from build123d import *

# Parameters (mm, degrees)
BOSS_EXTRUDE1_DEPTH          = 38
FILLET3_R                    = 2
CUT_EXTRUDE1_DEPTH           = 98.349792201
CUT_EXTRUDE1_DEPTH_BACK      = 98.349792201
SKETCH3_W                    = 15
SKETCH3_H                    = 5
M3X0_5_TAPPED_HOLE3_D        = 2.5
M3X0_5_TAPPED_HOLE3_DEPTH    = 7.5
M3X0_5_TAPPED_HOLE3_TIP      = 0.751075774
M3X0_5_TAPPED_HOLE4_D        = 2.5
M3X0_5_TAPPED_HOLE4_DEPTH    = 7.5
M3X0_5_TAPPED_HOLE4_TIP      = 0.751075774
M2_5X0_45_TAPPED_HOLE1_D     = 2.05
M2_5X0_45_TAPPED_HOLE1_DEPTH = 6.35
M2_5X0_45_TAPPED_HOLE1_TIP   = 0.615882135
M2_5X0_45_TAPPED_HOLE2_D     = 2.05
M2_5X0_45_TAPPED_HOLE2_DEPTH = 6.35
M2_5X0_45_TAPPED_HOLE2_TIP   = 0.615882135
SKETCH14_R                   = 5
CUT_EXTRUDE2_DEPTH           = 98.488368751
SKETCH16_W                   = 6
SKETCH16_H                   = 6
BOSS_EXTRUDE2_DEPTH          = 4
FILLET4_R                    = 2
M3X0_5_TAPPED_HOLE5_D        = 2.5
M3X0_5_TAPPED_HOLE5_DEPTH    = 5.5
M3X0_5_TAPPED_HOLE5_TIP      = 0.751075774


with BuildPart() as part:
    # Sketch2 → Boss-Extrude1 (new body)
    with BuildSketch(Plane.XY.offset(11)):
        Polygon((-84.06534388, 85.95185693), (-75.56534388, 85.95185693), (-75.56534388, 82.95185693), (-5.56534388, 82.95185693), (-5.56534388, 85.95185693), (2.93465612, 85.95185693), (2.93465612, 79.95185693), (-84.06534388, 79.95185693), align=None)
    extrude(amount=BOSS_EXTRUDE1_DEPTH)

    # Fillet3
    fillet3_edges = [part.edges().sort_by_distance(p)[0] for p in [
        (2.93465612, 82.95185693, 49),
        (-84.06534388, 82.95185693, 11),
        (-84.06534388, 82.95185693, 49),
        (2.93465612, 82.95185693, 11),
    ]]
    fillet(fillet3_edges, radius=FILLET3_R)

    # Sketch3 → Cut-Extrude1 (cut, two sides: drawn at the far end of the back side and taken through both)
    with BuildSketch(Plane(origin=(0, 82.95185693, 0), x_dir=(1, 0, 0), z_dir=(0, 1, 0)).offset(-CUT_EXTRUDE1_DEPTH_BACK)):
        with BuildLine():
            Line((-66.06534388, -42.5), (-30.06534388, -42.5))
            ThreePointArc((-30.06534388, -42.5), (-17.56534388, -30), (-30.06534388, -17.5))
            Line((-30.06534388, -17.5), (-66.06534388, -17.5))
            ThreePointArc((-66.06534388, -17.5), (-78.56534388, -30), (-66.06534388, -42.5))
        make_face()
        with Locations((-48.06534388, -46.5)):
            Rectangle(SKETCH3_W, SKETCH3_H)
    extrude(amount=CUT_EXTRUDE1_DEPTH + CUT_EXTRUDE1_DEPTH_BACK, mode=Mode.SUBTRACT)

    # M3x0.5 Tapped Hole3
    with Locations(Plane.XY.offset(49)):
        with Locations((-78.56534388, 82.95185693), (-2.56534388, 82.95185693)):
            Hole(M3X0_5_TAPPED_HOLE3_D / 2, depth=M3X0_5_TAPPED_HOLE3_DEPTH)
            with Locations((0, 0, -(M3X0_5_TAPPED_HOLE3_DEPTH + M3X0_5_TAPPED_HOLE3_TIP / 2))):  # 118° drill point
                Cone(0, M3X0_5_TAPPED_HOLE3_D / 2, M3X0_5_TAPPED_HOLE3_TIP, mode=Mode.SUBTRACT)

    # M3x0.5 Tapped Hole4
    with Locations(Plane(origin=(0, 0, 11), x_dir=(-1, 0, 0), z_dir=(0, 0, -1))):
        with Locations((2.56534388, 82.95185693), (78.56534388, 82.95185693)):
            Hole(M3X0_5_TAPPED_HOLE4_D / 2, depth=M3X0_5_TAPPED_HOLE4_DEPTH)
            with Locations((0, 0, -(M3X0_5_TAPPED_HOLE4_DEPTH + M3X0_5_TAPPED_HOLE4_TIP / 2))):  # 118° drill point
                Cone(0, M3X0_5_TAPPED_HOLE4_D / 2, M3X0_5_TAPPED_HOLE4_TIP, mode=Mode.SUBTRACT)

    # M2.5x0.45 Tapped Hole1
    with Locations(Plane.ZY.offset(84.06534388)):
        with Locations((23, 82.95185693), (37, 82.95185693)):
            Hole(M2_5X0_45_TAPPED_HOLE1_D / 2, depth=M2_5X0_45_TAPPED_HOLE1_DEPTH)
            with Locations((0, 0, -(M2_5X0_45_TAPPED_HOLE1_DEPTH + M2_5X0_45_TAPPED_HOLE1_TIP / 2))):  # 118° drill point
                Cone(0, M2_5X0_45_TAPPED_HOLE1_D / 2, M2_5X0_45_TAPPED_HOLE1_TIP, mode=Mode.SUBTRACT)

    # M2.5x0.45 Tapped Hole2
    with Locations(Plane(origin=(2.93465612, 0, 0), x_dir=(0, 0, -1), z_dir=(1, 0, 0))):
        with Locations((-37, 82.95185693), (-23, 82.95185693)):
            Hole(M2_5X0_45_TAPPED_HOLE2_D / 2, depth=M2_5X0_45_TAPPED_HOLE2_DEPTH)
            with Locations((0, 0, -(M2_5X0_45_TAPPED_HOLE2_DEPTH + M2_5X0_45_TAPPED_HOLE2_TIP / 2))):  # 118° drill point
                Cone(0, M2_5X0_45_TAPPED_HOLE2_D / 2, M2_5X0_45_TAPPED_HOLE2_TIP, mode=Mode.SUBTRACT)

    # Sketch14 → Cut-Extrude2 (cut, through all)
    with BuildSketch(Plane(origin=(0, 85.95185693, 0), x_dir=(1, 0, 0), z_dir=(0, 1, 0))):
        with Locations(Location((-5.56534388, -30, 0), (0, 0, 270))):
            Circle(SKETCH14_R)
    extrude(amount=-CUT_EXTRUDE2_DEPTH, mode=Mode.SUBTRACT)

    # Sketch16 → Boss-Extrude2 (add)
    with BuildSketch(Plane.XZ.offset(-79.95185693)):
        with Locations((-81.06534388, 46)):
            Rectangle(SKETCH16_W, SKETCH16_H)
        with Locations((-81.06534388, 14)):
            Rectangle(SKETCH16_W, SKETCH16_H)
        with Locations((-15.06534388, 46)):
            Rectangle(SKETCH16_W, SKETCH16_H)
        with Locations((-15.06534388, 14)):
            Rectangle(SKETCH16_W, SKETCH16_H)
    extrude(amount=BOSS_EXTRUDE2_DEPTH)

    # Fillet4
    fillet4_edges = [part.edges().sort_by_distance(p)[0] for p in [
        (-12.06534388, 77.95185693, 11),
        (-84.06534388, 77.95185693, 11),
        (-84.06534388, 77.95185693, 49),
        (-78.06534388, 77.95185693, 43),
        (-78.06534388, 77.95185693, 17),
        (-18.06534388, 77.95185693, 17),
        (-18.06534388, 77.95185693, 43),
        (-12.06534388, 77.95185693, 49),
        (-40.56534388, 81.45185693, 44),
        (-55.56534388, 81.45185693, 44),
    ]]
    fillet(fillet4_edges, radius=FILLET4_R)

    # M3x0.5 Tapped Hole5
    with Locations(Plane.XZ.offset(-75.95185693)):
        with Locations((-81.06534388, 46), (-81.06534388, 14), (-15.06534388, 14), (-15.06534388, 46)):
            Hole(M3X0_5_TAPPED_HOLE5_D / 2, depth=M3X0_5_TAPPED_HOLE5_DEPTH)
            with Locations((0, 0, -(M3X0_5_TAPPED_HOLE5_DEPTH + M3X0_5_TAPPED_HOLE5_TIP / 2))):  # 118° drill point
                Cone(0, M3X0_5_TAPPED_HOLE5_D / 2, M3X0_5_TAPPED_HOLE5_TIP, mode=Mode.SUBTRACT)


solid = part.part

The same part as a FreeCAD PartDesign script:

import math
import FreeCAD as App
import Part
import Sketcher

V = App.Vector
Q = App.Units.Quantity


def edges_at(feature, points):
    """Names of the edges that pass closest to the given points."""
    edges = feature.Shape.Edges
    near = lambda p: min(range(len(edges)), key=lambda i: edges[i].distToShape(Part.Vertex(*p))[0])
    return sorted({f"Edge{near(p) + 1}" for p in points})

doc = App.newDocument("Part")
body = doc.addObject("PartDesign::Body", "Body")

sketch1 = body.newObject("Sketcher::SketchObject", "Sketch")
sketch1.AttachmentSupport = (doc.getObject("XY_Plane"), [""])
sketch1.MapMode = "FlatFace"
sketch1.AttachmentOffset = App.Placement(V(0, 0, 11), App.Rotation())
sketch1.addGeometry(Part.LineSegment(V(-75.6, 86, 0), V(-84.1, 86, 0)), False)
sketch1.addGeometry(Part.LineSegment(V(-84.1, 86, 0), V(-84.1, 80, 0)), False)
sketch1.addGeometry(Part.LineSegment(V(-84.1, 80, 0), V(2.9, 80, 0)), False)
sketch1.addGeometry(Part.LineSegment(V(2.9, 80, 0), V(2.9, 86, 0)), False)
sketch1.addGeometry(Part.LineSegment(V(2.9, 86, 0), V(-5.6, 86, 0)), False)
sketch1.addGeometry(Part.LineSegment(V(-5.6, 86, 0), V(-5.6, 83, 0)), False)
sketch1.addGeometry(Part.LineSegment(V(-5.6, 83, 0), V(-75.6, 83, 0)), False)
sketch1.addGeometry(Part.LineSegment(V(-75.6, 83, 0), V(-75.6, 86, 0)), False)
sketch1.addConstraint(Sketcher.Constraint("Coincident", 0, 2, 1, 1))
sketch1.addConstraint(Sketcher.Constraint("Coincident", 1, 2, 2, 1))
sketch1.addConstraint(Sketcher.Constraint("Coincident", 2, 2, 3, 1))
sketch1.addConstraint(Sketcher.Constraint("Coincident", 3, 2, 4, 1))
sketch1.addConstraint(Sketcher.Constraint("Coincident", 4, 2, 5, 1))
sketch1.addConstraint(Sketcher.Constraint("Coincident", 5, 2, 6, 1))
sketch1.addConstraint(Sketcher.Constraint("Coincident", 6, 2, 7, 1))
sketch1.addConstraint(Sketcher.Constraint("Coincident", 7, 2, 0, 1))
sketch1.addConstraint(Sketcher.Constraint("Horizontal", 0))
sketch1.addConstraint(Sketcher.Constraint("Vertical", 1))
sketch1.addConstraint(Sketcher.Constraint("Horizontal", 2))
sketch1.addConstraint(Sketcher.Constraint("Vertical", 3))
sketch1.addConstraint(Sketcher.Constraint("Horizontal", 4))
sketch1.addConstraint(Sketcher.Constraint("Vertical", 5))
sketch1.addConstraint(Sketcher.Constraint("Horizontal", 6))
sketch1.addConstraint(Sketcher.Constraint("Vertical", 7))
sketch1.addConstraint(Sketcher.Constraint("Horizontal", 0, 2, 3, 2))
sketch1.addConstraint(Sketcher.Constraint("Equal", 0, 4))
sketch1.addConstraint(Sketcher.Constraint("DistanceX", 2, 1, 2, 2, Q("87 mm")))
sketch1.addConstraint(Sketcher.Constraint("DistanceX", 6, 2, 6, 1, Q("70 mm")))
sketch1.addConstraint(Sketcher.Constraint("DistanceY", 1, 2, 1, 1, Q("6 mm")))
sketch1.addConstraint(Sketcher.Constraint("DistanceY", 5, 2, 5, 1, Q("3 mm")))
sketch1.addConstraint(Sketcher.Constraint("DistanceX", 0, 2, -1, 1, Q("84.065344 mm")))
sketch1.addConstraint(Sketcher.Constraint("DistanceY", -1, 1, 0, 2, Q("85.951857 mm")))
pad1 = body.newObject("PartDesign::Pad", "Pad")
pad1.Profile = sketch1
pad1.Length = 38
doc.recompute()

fillet = body.newObject("PartDesign::Fillet", "Fillet")
fillet.Base = (pad1, edges_at(pad1, [
    (2.935, 82.952, 49),
    (-84.065, 82.952, 11),
    (-84.065, 82.952, 49),
    (2.935, 82.952, 11),
]))
fillet.Radius = 2

sketch2 = body.newObject("Sketcher::SketchObject", "Sketch001")
sketch2.AttachmentSupport = (doc.getObject("XZ_Plane"), [""])
sketch2.MapMode = "FlatFace"
sketch2.AttachmentOffset = App.Placement(V(0, 0, -82.951857), App.Rotation())
sketch2.addGeometry(Part.LineSegment(V(-66, 42, 0), V(-30, 42, 0)), False)
sketch2.addGeometry(Part.ArcOfCircle(Part.Circle(V(-30, 30, 0), V(0, 0, 1), 12), math.radians(-90), math.radians(90)), False)
sketch2.addGeometry(Part.LineSegment(V(-30, 18, 0), V(-66, 18, 0)), False)
sketch2.addGeometry(Part.ArcOfCircle(Part.Circle(V(-66, 30, 0), V(0, 0, 1), 12), math.radians(90), math.radians(270)), False)
sketch2.addGeometry(Part.LineSegment(V(-56, 44, 0), V(-56, 49, 0)), False)
sketch2.addGeometry(Part.LineSegment(V(-56, 49, 0), V(-41, 49, 0)), False)
sketch2.addGeometry(Part.LineSegment(V(-41, 49, 0), V(-41, 44, 0)), False)
sketch2.addGeometry(Part.LineSegment(V(-41, 44, 0), V(-56, 44, 0)), False)
sketch2.addConstraint(Sketcher.Constraint("Tangent", 0, 2, 1, 2))
sketch2.addConstraint(Sketcher.Constraint("Tangent", 1, 1, 2, 1))
sketch2.addConstraint(Sketcher.Constraint("Tangent", 2, 2, 3, 2))
sketch2.addConstraint(Sketcher.Constraint("Tangent", 3, 1, 0, 1))
sketch2.addConstraint(Sketcher.Constraint("Coincident", 4, 2, 5, 1))
sketch2.addConstraint(Sketcher.Constraint("Coincident", 5, 2, 6, 1))
sketch2.addConstraint(Sketcher.Constraint("Coincident", 6, 2, 7, 1))
sketch2.addConstraint(Sketcher.Constraint("Coincident", 7, 2, 4, 1))
sketch2.addConstraint(Sketcher.Constraint("Horizontal", 0))
sketch2.addConstraint(Sketcher.Constraint("Horizontal", 2))
sketch2.addConstraint(Sketcher.Constraint("Vertical", 4))
sketch2.addConstraint(Sketcher.Constraint("Horizontal", 5))
sketch2.addConstraint(Sketcher.Constraint("Vertical", 6))
sketch2.addConstraint(Sketcher.Constraint("Horizontal", 7))
sketch2.addConstraint(Sketcher.Constraint("Radius", 1, Q("12.5 mm")))
sketch2.addConstraint(Sketcher.Constraint("DistanceX", 0, 1, 0, 2, Q("36 mm")))
sketch2.addConstraint(Sketcher.Constraint("DistanceX", 5, 1, 5, 2, Q("15 mm")))
sketch2.addConstraint(Sketcher.Constraint("DistanceY", 4, 1, 4, 2, Q("5 mm")))
sketch2.addConstraint(Sketcher.Constraint("DistanceY", -1, 1, 1, 3, Q("30 mm")))
sketch2.addConstraint(Sketcher.Constraint("DistanceY", -1, 1, 4, 2, Q("49 mm")))
sketch2.addConstraint(Sketcher.Constraint("DistanceX", 3, 1, 4, 2, Q("10.5 mm")))
sketch2.addConstraint(Sketcher.Constraint("DistanceX", 1, 3, -1, 1, Q("30.065344 mm")))
pocket1 = body.newObject("PartDesign::Pocket", "Pocket")
pocket1.Profile = sketch2
pocket1.Type = "ThroughAll"
pocket1.Midplane = True

sketch3 = body.newObject("Sketcher::SketchObject", "Sketch002")
sketch3.AttachmentSupport = (doc.getObject("XY_Plane"), [""])
sketch3.MapMode = "FlatFace"
sketch3.AttachmentOffset = App.Placement(V(0, 0, 49), App.Rotation())
sketch3.addGeometry(Part.Circle(V(-78.6, 83, 0), V(0, 0, 1), 1.2), False)
sketch3.addGeometry(Part.Circle(V(-2.6, 83, 0), V(0, 0, 1), 1.2), False)
sketch3.addConstraint(Sketcher.Constraint("Equal", 0, 1))
sketch3.addConstraint(Sketcher.Constraint("Horizontal", 0, 3, 1, 3))
sketch3.addConstraint(Sketcher.Constraint("Diameter", 0, Q("2.5 mm")))
sketch3.addConstraint(Sketcher.Constraint("DistanceX", 0, 3, 1, 3, Q("76 mm")))
sketch3.addConstraint(Sketcher.Constraint("DistanceX", 0, 3, -1, 1, Q("78.565344 mm")))
sketch3.addConstraint(Sketcher.Constraint("DistanceY", -1, 1, 0, 3, Q("82.951857 mm")))
doc.recompute()
hole = body.newObject("PartDesign::Hole", "Hole")
hole.Profile = sketch3
hole.ThreadType = "None"
hole.Diameter = 2.5
hole.DepthType = "Dimension"
hole.Depth = 7.5
hole.DrillPoint = "Angled"
hole.DrillPointAngle = 118

sketch4 = body.newObject("Sketcher::SketchObject", "Sketch003")
sketch4.AttachmentSupport = (doc.getObject("XY_Plane"), [""])
sketch4.MapMode = "FlatFace"
sketch4.AttachmentOffset = App.Placement(V(0, 0, 11), App.Rotation())
sketch4.addGeometry(Part.Circle(V(-2.6, 83, 0), V(0, 0, 1), 1.2), False)
sketch4.addGeometry(Part.Circle(V(-78.6, 83, 0), V(0, 0, 1), 1.2), False)
sketch4.addConstraint(Sketcher.Constraint("Equal", 0, 1))
sketch4.addConstraint(Sketcher.Constraint("Horizontal", 0, 3, 1, 3))
sketch4.addConstraint(Sketcher.Constraint("Diameter", 0, Q("2.5 mm")))
sketch4.addConstraint(Sketcher.Constraint("DistanceX", 1, 3, 0, 3, Q("76 mm")))
sketch4.addConstraint(Sketcher.Constraint("DistanceX", 0, 3, -1, 1, Q("2.565344 mm")))
sketch4.addConstraint(Sketcher.Constraint("DistanceY", -1, 1, 0, 3, Q("82.951857 mm")))
doc.recompute()
hole2 = body.newObject("PartDesign::Hole", "Hole001")
hole2.Profile = sketch4
hole2.ThreadType = "None"
hole2.Diameter = 2.5
hole2.DepthType = "Dimension"
hole2.Depth = 7.5
hole2.DrillPoint = "Angled"
hole2.DrillPointAngle = 118
hole2.Reversed = True

sketch5 = body.newObject("Sketcher::SketchObject", "Sketch004")
sketch5.AttachmentSupport = (doc.getObject("YZ_Plane"), [""])
sketch5.MapMode = "FlatFace"
sketch5.AttachmentOffset = App.Placement(V(0, 0, -84.065344), App.Rotation())
sketch5.addGeometry(Part.Circle(V(83, 23, 0), V(0, 0, 1), 1), False)
sketch5.addGeometry(Part.Circle(V(83, 37, 0), V(0, 0, 1), 1), False)
sketch5.addConstraint(Sketcher.Constraint("Equal", 0, 1))
sketch5.addConstraint(Sketcher.Constraint("Vertical", 0, 3, 1, 3))
sketch5.addConstraint(Sketcher.Constraint("Diameter", 0, Q("2.05 mm")))
sketch5.addConstraint(Sketcher.Constraint("DistanceY", -1, 1, 0, 3, Q("23 mm")))
sketch5.addConstraint(Sketcher.Constraint("DistanceY", -1, 1, 1, 3, Q("37 mm")))
sketch5.addConstraint(Sketcher.Constraint("DistanceX", -1, 1, 0, 3, Q("82.951857 mm")))
doc.recompute()
hole3 = body.newObject("PartDesign::Hole", "Hole002")
hole3.Profile = sketch5
hole3.ThreadType = "None"
hole3.Diameter = 2.05
hole3.DepthType = "Dimension"
hole3.Depth = 6.35
hole3.DrillPoint = "Angled"
hole3.DrillPointAngle = 118
hole3.Reversed = True

sketch6 = body.newObject("Sketcher::SketchObject", "Sketch005")
sketch6.AttachmentSupport = (doc.getObject("YZ_Plane"), [""])
sketch6.MapMode = "FlatFace"
sketch6.AttachmentOffset = App.Placement(V(0, 0, 2.934656), App.Rotation())
sketch6.addGeometry(Part.Circle(V(83, 37, 0), V(0, 0, 1), 1), False)
sketch6.addGeometry(Part.Circle(V(83, 23, 0), V(0, 0, 1), 1), False)
sketch6.addConstraint(Sketcher.Constraint("Equal", 0, 1))
sketch6.addConstraint(Sketcher.Constraint("Vertical", 0, 3, 1, 3))
sketch6.addConstraint(Sketcher.Constraint("Diameter", 0, Q("2.05 mm")))
sketch6.addConstraint(Sketcher.Constraint("DistanceY", -1, 1, 0, 3, Q("37 mm")))
sketch6.addConstraint(Sketcher.Constraint("DistanceY", -1, 1, 1, 3, Q("23 mm")))
sketch6.addConstraint(Sketcher.Constraint("DistanceX", -1, 1, 0, 3, Q("82.951857 mm")))
doc.recompute()
hole4 = body.newObject("PartDesign::Hole", "Hole003")
hole4.Profile = sketch6
hole4.ThreadType = "None"
hole4.Diameter = 2.05
hole4.DepthType = "Dimension"
hole4.Depth = 6.35
hole4.DrillPoint = "Angled"
hole4.DrillPointAngle = 118

sketch7 = body.newObject("Sketcher::SketchObject", "Sketch006")
sketch7.AttachmentSupport = (doc.getObject("XZ_Plane"), [""])
sketch7.MapMode = "FlatFace"
sketch7.AttachmentOffset = App.Placement(V(0, 0, -85.951857), App.Rotation())
sketch7.addGeometry(Part.Circle(V(-6, 30, 0), V(0, 0, 1), 5), False)
sketch7.addConstraint(Sketcher.Constraint("Diameter", 0, Q("10 mm")))
sketch7.addConstraint(Sketcher.Constraint("DistanceY", -1, 1, 0, 3, Q("30 mm")))
sketch7.addConstraint(Sketcher.Constraint("DistanceX", 0, 3, -1, 1, Q("5.565344 mm")))
pocket2 = body.newObject("PartDesign::Pocket", "Pocket001")
pocket2.Profile = sketch7
pocket2.Type = "ThroughAll"
pocket2.Reversed = True

sketch8 = body.newObject("Sketcher::SketchObject", "Sketch007")
sketch8.AttachmentSupport = (doc.getObject("XZ_Plane"), [""])
sketch8.MapMode = "FlatFace"
sketch8.AttachmentOffset = App.Placement(V(0, 0, -79.951857), App.Rotation())
sketch8.addGeometry(Part.LineSegment(V(-84, 49, 0), V(-84, 43, 0)), False)
sketch8.addGeometry(Part.LineSegment(V(-84, 43, 0), V(-78, 43, 0)), False)
sketch8.addGeometry(Part.LineSegment(V(-78, 43, 0), V(-78, 49, 0)), False)
sketch8.addGeometry(Part.LineSegment(V(-78, 49, 0), V(-84, 49, 0)), False)
sketch8.addGeometry(Part.LineSegment(V(-84, 17, 0), V(-84, 11, 0)), False)
sketch8.addGeometry(Part.LineSegment(V(-84, 11, 0), V(-78, 11, 0)), False)
sketch8.addGeometry(Part.LineSegment(V(-78, 11, 0), V(-78, 17, 0)), False)
sketch8.addGeometry(Part.LineSegment(V(-78, 17, 0), V(-84, 17, 0)), False)
sketch8.addGeometry(Part.LineSegment(V(-18, 49, 0), V(-18, 43, 0)), False)
sketch8.addGeometry(Part.LineSegment(V(-18, 43, 0), V(-12, 43, 0)), False)
sketch8.addGeometry(Part.LineSegment(V(-12, 43, 0), V(-12, 49, 0)), False)
sketch8.addGeometry(Part.LineSegment(V(-12, 49, 0), V(-18, 49, 0)), False)
sketch8.addGeometry(Part.LineSegment(V(-18, 17, 0), V(-18, 11, 0)), False)
sketch8.addGeometry(Part.LineSegment(V(-18, 11, 0), V(-12, 11, 0)), False)
sketch8.addGeometry(Part.LineSegment(V(-12, 11, 0), V(-12, 17, 0)), False)
sketch8.addGeometry(Part.LineSegment(V(-12, 17, 0), V(-18, 17, 0)), False)
sketch8.addConstraint(Sketcher.Constraint("Coincident", 0, 2, 1, 1))
sketch8.addConstraint(Sketcher.Constraint("Coincident", 1, 2, 2, 1))
sketch8.addConstraint(Sketcher.Constraint("Coincident", 2, 2, 3, 1))
sketch8.addConstraint(Sketcher.Constraint("Coincident", 3, 2, 0, 1))
sketch8.addConstraint(Sketcher.Constraint("Coincident", 4, 2, 5, 1))
sketch8.addConstraint(Sketcher.Constraint("Coincident", 5, 2, 6, 1))
sketch8.addConstraint(Sketcher.Constraint("Coincident", 6, 2, 7, 1))
sketch8.addConstraint(Sketcher.Constraint("Coincident", 7, 2, 4, 1))
sketch8.addConstraint(Sketcher.Constraint("Coincident", 8, 2, 9, 1))
sketch8.addConstraint(Sketcher.Constraint("Coincident", 9, 2, 10, 1))
sketch8.addConstraint(Sketcher.Constraint("Coincident", 10, 2, 11, 1))
sketch8.addConstraint(Sketcher.Constraint("Coincident", 11, 2, 8, 1))
sketch8.addConstraint(Sketcher.Constraint("Coincident", 12, 2, 13, 1))
sketch8.addConstraint(Sketcher.Constraint("Coincident", 13, 2, 14, 1))
sketch8.addConstraint(Sketcher.Constraint("Coincident", 14, 2, 15, 1))
sketch8.addConstraint(Sketcher.Constraint("Coincident", 15, 2, 12, 1))
sketch8.addConstraint(Sketcher.Constraint("Vertical", 0))
sketch8.addConstraint(Sketcher.Constraint("Horizontal", 1))
sketch8.addConstraint(Sketcher.Constraint("Vertical", 2))
sketch8.addConstraint(Sketcher.Constraint("Horizontal", 3))
sketch8.addConstraint(Sketcher.Constraint("Vertical", 4))
sketch8.addConstraint(Sketcher.Constraint("Horizontal", 5))
sketch8.addConstraint(Sketcher.Constraint("Vertical", 6))
sketch8.addConstraint(Sketcher.Constraint("Horizontal", 7))
sketch8.addConstraint(Sketcher.Constraint("Vertical", 8))
sketch8.addConstraint(Sketcher.Constraint("Horizontal", 9))
sketch8.addConstraint(Sketcher.Constraint("Vertical", 10))
sketch8.addConstraint(Sketcher.Constraint("Horizontal", 11))
sketch8.addConstraint(Sketcher.Constraint("Vertical", 12))
sketch8.addConstraint(Sketcher.Constraint("Horizontal", 13))
sketch8.addConstraint(Sketcher.Constraint("Vertical", 14))
sketch8.addConstraint(Sketcher.Constraint("Horizontal", 15))
sketch8.addConstraint(Sketcher.Constraint("Horizontal", 1, 2, 8, 2))
sketch8.addConstraint(Sketcher.Constraint("Horizontal", 3, 2, 10, 2))
sketch8.addConstraint(Sketcher.Constraint("Horizontal", 5, 2, 12, 2))
sketch8.addConstraint(Sketcher.Constraint("Horizontal", 7, 2, 14, 2))
sketch8.addConstraint(Sketcher.Constraint("Vertical", 3, 2, 4, 2))
sketch8.addConstraint(Sketcher.Constraint("Vertical", 2, 2, 5, 2))
sketch8.addConstraint(Sketcher.Constraint("Vertical", 11, 2, 12, 2))
sketch8.addConstraint(Sketcher.Constraint("Vertical", 10, 2, 13, 2))
sketch8.addConstraint(Sketcher.Constraint("Equal", 7, 9))
sketch8.addConstraint(Sketcher.Constraint("Equal", 15, 0))
sketch8.addConstraint(Sketcher.Constraint("Equal", 2, 4))
sketch8.addConstraint(Sketcher.Constraint("DistanceX", 1, 1, 1, 2, Q("6 mm")))
sketch8.addConstraint(Sketcher.Constraint("DistanceY", -1, 1, 0, 2, Q("43 mm")))
sketch8.addConstraint(Sketcher.Constraint("DistanceY", -1, 1, 4, 2, Q("11 mm")))
sketch8.addConstraint(Sketcher.Constraint("DistanceX", 1, 2, 8, 2, Q("60 mm")))
sketch8.addConstraint(Sketcher.Constraint("DistanceX", 0, 2, -1, 1, Q("84.065344 mm")))
pad2 = body.newObject("PartDesign::Pad", "Pad001")
pad2.Profile = sketch8
pad2.Length = 4
doc.recompute()

fillet2 = body.newObject("PartDesign::Fillet", "Fillet001")
fillet2.Base = (pad2, edges_at(pad2, [
    (-12.065, 77.952, 11),
    (-84.065, 77.952, 11),
    (-84.065, 77.952, 49),
    (-78.065, 77.952, 43),
    (-78.065, 77.952, 17),
    (-18.065, 77.952, 17),
    (-18.065, 77.952, 43),
    (-12.065, 77.952, 49),
    (-40.565, 81.452, 44),
    (-55.565, 81.452, 44),
]))
fillet2.Radius = 2

sketch9 = body.newObject("Sketcher::SketchObject", "Sketch008")
sketch9.AttachmentSupport = (doc.getObject("XZ_Plane"), [""])
sketch9.MapMode = "FlatFace"
sketch9.AttachmentOffset = App.Placement(V(0, 0, -75.951857), App.Rotation())
sketch9.addGeometry(Part.Circle(V(-81.1, 46, 0), V(0, 0, 1), 1.2), False)
sketch9.addGeometry(Part.Circle(V(-81.1, 14, 0), V(0, 0, 1), 1.2), False)
sketch9.addGeometry(Part.Circle(V(-15.1, 14, 0), V(0, 0, 1), 1.2), False)
sketch9.addGeometry(Part.Circle(V(-15.1, 46, 0), V(0, 0, 1), 1.2), False)
sketch9.addConstraint(Sketcher.Constraint("Equal", 0, 1))
sketch9.addConstraint(Sketcher.Constraint("Equal", 1, 2))
sketch9.addConstraint(Sketcher.Constraint("Equal", 2, 3))
sketch9.addConstraint(Sketcher.Constraint("Horizontal", 1, 3, 2, 3))
sketch9.addConstraint(Sketcher.Constraint("Horizontal", 0, 3, 3, 3))
sketch9.addConstraint(Sketcher.Constraint("Vertical", 0, 3, 1, 3))
sketch9.addConstraint(Sketcher.Constraint("Vertical", 2, 3, 3, 3))
sketch9.addConstraint(Sketcher.Constraint("Diameter", 0, Q("2.5 mm")))
sketch9.addConstraint(Sketcher.Constraint("DistanceY", -1, 1, 0, 3, Q("46 mm")))
sketch9.addConstraint(Sketcher.Constraint("DistanceY", -1, 1, 1, 3, Q("14 mm")))
sketch9.addConstraint(Sketcher.Constraint("DistanceX", 1, 3, 2, 3, Q("66 mm")))
sketch9.addConstraint(Sketcher.Constraint("DistanceX", 0, 3, -1, 1, Q("81.065344 mm")))
doc.recompute()
hole5 = body.newObject("PartDesign::Hole", "Hole004")
hole5.Profile = sketch9
hole5.ThreadType = "None"
hole5.Diameter = 2.5
hole5.DepthType = "Dimension"
hole5.Depth = 5.5
hole5.DrillPoint = "Angled"
hole5.DrillPointAngle = 118

doc.recompute()
